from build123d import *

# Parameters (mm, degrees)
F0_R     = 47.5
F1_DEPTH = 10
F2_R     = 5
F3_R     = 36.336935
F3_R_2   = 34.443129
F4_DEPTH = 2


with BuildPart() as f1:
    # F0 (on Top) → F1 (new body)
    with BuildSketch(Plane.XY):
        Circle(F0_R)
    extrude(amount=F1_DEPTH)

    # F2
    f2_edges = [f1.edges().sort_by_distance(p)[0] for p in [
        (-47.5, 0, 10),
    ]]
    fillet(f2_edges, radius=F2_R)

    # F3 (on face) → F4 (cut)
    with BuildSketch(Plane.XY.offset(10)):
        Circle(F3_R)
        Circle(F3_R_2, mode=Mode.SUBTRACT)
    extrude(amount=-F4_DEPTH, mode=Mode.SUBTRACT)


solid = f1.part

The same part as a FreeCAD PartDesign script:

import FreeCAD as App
import Part
import Sketcher

V = App.Vector


def edges_at(feature, points):
    """Names of the edges that pass closest to the given points."""
    edges = feature.Shape.Edges
    near = lambda p: min(range(len(edges)), key=lambda i: edges[i].distToShape(Part.Vertex(*p))[0])
    return sorted({f"Edge{near(p) + 1}" for p in points})

doc = App.newDocument("Part")
params = doc.addObject("Spreadsheet::Sheet", "Params")
for row, (alias, value) in enumerate([
    ("sketch1_diameter", "95 mm"),
    ("pad1_length", "10 mm"),
    ("fillet_radius", "5 mm"),
    ("pocket1_length", "2 mm"),
], start=1):
    params.set(f"A{row}", alias)
    params.set(f"B{row}", "=" + value)
    params.setAlias(f"B{row}", alias)

body = doc.addObject("PartDesign::Body", "Body")

# Sketch on XY plane
sketch1 = doc.addObject("Sketcher::SketchObject", "Sketch")
body.addObject(sketch1)
sketch1.AttachmentSupport = (doc.XY_Plane, [""])
sketch1.MapMode = "FlatFace"
sketch1.addGeometry(Part.Circle(V(0, 0, 0), V(0, 0, 1), 47.5), False)
sketch1.addConstraint(Sketcher.Constraint("Coincident", 0, 3, -1, 1))
sketch1.addConstraint(Sketcher.Constraint("Diameter", 0, 95.0))
sketch1.setExpression("Constraints[1]", "Params.sketch1_diameter")
pad1 = doc.addObject("PartDesign::Pad", "Pad")
body.addObject(pad1)
pad1.Profile = sketch1
pad1.setExpression("Length", "Params.pad1_length")
doc.recompute()

fillet = doc.addObject("PartDesign::Fillet", "Fillet")
body.addObject(fillet)
fillet.Base = (pad1, edges_at(pad1, [(-47.5, 0, 10)]))
fillet.setExpression("Radius", "Params.fillet_radius")

# Sketch on XY plane
sketch2 = doc.addObject("Sketcher::SketchObject", "Sketch001")
body.addObject(sketch2)
sketch2.AttachmentSupport = (doc.XY_Plane, [""])
sketch2.MapMode = "FlatFace"
sketch2.AttachmentOffset = App.Placement(V(0, 0, 10), App.Rotation())
sketch2.addGeometry(Part.Circle(V(0, 0, 0), V(0, 0, 1), 36.336935), False)
sketch2.addGeometry(Part.Circle(V(0, 0, 0), V(0, 0, 1), 34.443129), False)
sketch2.addConstraint(Sketcher.Constraint("Coincident", 0, 3, -1, 1))
sketch2.addConstraint(Sketcher.Constraint("Coincident", 1, 3, -1, 1))
sketch2.addConstraint(Sketcher.Constraint("Diameter", 0, 72.67387))
sketch2.addConstraint(Sketcher.Constraint("Diameter", 1, 68.886258))
pocket1 = doc.addObject("PartDesign::Pocket", "Pocket")
body.addObject(pocket1)
pocket1.Profile = sketch2
pocket1.setExpression("Length", "Params.pocket1_length")

doc.recompute()
